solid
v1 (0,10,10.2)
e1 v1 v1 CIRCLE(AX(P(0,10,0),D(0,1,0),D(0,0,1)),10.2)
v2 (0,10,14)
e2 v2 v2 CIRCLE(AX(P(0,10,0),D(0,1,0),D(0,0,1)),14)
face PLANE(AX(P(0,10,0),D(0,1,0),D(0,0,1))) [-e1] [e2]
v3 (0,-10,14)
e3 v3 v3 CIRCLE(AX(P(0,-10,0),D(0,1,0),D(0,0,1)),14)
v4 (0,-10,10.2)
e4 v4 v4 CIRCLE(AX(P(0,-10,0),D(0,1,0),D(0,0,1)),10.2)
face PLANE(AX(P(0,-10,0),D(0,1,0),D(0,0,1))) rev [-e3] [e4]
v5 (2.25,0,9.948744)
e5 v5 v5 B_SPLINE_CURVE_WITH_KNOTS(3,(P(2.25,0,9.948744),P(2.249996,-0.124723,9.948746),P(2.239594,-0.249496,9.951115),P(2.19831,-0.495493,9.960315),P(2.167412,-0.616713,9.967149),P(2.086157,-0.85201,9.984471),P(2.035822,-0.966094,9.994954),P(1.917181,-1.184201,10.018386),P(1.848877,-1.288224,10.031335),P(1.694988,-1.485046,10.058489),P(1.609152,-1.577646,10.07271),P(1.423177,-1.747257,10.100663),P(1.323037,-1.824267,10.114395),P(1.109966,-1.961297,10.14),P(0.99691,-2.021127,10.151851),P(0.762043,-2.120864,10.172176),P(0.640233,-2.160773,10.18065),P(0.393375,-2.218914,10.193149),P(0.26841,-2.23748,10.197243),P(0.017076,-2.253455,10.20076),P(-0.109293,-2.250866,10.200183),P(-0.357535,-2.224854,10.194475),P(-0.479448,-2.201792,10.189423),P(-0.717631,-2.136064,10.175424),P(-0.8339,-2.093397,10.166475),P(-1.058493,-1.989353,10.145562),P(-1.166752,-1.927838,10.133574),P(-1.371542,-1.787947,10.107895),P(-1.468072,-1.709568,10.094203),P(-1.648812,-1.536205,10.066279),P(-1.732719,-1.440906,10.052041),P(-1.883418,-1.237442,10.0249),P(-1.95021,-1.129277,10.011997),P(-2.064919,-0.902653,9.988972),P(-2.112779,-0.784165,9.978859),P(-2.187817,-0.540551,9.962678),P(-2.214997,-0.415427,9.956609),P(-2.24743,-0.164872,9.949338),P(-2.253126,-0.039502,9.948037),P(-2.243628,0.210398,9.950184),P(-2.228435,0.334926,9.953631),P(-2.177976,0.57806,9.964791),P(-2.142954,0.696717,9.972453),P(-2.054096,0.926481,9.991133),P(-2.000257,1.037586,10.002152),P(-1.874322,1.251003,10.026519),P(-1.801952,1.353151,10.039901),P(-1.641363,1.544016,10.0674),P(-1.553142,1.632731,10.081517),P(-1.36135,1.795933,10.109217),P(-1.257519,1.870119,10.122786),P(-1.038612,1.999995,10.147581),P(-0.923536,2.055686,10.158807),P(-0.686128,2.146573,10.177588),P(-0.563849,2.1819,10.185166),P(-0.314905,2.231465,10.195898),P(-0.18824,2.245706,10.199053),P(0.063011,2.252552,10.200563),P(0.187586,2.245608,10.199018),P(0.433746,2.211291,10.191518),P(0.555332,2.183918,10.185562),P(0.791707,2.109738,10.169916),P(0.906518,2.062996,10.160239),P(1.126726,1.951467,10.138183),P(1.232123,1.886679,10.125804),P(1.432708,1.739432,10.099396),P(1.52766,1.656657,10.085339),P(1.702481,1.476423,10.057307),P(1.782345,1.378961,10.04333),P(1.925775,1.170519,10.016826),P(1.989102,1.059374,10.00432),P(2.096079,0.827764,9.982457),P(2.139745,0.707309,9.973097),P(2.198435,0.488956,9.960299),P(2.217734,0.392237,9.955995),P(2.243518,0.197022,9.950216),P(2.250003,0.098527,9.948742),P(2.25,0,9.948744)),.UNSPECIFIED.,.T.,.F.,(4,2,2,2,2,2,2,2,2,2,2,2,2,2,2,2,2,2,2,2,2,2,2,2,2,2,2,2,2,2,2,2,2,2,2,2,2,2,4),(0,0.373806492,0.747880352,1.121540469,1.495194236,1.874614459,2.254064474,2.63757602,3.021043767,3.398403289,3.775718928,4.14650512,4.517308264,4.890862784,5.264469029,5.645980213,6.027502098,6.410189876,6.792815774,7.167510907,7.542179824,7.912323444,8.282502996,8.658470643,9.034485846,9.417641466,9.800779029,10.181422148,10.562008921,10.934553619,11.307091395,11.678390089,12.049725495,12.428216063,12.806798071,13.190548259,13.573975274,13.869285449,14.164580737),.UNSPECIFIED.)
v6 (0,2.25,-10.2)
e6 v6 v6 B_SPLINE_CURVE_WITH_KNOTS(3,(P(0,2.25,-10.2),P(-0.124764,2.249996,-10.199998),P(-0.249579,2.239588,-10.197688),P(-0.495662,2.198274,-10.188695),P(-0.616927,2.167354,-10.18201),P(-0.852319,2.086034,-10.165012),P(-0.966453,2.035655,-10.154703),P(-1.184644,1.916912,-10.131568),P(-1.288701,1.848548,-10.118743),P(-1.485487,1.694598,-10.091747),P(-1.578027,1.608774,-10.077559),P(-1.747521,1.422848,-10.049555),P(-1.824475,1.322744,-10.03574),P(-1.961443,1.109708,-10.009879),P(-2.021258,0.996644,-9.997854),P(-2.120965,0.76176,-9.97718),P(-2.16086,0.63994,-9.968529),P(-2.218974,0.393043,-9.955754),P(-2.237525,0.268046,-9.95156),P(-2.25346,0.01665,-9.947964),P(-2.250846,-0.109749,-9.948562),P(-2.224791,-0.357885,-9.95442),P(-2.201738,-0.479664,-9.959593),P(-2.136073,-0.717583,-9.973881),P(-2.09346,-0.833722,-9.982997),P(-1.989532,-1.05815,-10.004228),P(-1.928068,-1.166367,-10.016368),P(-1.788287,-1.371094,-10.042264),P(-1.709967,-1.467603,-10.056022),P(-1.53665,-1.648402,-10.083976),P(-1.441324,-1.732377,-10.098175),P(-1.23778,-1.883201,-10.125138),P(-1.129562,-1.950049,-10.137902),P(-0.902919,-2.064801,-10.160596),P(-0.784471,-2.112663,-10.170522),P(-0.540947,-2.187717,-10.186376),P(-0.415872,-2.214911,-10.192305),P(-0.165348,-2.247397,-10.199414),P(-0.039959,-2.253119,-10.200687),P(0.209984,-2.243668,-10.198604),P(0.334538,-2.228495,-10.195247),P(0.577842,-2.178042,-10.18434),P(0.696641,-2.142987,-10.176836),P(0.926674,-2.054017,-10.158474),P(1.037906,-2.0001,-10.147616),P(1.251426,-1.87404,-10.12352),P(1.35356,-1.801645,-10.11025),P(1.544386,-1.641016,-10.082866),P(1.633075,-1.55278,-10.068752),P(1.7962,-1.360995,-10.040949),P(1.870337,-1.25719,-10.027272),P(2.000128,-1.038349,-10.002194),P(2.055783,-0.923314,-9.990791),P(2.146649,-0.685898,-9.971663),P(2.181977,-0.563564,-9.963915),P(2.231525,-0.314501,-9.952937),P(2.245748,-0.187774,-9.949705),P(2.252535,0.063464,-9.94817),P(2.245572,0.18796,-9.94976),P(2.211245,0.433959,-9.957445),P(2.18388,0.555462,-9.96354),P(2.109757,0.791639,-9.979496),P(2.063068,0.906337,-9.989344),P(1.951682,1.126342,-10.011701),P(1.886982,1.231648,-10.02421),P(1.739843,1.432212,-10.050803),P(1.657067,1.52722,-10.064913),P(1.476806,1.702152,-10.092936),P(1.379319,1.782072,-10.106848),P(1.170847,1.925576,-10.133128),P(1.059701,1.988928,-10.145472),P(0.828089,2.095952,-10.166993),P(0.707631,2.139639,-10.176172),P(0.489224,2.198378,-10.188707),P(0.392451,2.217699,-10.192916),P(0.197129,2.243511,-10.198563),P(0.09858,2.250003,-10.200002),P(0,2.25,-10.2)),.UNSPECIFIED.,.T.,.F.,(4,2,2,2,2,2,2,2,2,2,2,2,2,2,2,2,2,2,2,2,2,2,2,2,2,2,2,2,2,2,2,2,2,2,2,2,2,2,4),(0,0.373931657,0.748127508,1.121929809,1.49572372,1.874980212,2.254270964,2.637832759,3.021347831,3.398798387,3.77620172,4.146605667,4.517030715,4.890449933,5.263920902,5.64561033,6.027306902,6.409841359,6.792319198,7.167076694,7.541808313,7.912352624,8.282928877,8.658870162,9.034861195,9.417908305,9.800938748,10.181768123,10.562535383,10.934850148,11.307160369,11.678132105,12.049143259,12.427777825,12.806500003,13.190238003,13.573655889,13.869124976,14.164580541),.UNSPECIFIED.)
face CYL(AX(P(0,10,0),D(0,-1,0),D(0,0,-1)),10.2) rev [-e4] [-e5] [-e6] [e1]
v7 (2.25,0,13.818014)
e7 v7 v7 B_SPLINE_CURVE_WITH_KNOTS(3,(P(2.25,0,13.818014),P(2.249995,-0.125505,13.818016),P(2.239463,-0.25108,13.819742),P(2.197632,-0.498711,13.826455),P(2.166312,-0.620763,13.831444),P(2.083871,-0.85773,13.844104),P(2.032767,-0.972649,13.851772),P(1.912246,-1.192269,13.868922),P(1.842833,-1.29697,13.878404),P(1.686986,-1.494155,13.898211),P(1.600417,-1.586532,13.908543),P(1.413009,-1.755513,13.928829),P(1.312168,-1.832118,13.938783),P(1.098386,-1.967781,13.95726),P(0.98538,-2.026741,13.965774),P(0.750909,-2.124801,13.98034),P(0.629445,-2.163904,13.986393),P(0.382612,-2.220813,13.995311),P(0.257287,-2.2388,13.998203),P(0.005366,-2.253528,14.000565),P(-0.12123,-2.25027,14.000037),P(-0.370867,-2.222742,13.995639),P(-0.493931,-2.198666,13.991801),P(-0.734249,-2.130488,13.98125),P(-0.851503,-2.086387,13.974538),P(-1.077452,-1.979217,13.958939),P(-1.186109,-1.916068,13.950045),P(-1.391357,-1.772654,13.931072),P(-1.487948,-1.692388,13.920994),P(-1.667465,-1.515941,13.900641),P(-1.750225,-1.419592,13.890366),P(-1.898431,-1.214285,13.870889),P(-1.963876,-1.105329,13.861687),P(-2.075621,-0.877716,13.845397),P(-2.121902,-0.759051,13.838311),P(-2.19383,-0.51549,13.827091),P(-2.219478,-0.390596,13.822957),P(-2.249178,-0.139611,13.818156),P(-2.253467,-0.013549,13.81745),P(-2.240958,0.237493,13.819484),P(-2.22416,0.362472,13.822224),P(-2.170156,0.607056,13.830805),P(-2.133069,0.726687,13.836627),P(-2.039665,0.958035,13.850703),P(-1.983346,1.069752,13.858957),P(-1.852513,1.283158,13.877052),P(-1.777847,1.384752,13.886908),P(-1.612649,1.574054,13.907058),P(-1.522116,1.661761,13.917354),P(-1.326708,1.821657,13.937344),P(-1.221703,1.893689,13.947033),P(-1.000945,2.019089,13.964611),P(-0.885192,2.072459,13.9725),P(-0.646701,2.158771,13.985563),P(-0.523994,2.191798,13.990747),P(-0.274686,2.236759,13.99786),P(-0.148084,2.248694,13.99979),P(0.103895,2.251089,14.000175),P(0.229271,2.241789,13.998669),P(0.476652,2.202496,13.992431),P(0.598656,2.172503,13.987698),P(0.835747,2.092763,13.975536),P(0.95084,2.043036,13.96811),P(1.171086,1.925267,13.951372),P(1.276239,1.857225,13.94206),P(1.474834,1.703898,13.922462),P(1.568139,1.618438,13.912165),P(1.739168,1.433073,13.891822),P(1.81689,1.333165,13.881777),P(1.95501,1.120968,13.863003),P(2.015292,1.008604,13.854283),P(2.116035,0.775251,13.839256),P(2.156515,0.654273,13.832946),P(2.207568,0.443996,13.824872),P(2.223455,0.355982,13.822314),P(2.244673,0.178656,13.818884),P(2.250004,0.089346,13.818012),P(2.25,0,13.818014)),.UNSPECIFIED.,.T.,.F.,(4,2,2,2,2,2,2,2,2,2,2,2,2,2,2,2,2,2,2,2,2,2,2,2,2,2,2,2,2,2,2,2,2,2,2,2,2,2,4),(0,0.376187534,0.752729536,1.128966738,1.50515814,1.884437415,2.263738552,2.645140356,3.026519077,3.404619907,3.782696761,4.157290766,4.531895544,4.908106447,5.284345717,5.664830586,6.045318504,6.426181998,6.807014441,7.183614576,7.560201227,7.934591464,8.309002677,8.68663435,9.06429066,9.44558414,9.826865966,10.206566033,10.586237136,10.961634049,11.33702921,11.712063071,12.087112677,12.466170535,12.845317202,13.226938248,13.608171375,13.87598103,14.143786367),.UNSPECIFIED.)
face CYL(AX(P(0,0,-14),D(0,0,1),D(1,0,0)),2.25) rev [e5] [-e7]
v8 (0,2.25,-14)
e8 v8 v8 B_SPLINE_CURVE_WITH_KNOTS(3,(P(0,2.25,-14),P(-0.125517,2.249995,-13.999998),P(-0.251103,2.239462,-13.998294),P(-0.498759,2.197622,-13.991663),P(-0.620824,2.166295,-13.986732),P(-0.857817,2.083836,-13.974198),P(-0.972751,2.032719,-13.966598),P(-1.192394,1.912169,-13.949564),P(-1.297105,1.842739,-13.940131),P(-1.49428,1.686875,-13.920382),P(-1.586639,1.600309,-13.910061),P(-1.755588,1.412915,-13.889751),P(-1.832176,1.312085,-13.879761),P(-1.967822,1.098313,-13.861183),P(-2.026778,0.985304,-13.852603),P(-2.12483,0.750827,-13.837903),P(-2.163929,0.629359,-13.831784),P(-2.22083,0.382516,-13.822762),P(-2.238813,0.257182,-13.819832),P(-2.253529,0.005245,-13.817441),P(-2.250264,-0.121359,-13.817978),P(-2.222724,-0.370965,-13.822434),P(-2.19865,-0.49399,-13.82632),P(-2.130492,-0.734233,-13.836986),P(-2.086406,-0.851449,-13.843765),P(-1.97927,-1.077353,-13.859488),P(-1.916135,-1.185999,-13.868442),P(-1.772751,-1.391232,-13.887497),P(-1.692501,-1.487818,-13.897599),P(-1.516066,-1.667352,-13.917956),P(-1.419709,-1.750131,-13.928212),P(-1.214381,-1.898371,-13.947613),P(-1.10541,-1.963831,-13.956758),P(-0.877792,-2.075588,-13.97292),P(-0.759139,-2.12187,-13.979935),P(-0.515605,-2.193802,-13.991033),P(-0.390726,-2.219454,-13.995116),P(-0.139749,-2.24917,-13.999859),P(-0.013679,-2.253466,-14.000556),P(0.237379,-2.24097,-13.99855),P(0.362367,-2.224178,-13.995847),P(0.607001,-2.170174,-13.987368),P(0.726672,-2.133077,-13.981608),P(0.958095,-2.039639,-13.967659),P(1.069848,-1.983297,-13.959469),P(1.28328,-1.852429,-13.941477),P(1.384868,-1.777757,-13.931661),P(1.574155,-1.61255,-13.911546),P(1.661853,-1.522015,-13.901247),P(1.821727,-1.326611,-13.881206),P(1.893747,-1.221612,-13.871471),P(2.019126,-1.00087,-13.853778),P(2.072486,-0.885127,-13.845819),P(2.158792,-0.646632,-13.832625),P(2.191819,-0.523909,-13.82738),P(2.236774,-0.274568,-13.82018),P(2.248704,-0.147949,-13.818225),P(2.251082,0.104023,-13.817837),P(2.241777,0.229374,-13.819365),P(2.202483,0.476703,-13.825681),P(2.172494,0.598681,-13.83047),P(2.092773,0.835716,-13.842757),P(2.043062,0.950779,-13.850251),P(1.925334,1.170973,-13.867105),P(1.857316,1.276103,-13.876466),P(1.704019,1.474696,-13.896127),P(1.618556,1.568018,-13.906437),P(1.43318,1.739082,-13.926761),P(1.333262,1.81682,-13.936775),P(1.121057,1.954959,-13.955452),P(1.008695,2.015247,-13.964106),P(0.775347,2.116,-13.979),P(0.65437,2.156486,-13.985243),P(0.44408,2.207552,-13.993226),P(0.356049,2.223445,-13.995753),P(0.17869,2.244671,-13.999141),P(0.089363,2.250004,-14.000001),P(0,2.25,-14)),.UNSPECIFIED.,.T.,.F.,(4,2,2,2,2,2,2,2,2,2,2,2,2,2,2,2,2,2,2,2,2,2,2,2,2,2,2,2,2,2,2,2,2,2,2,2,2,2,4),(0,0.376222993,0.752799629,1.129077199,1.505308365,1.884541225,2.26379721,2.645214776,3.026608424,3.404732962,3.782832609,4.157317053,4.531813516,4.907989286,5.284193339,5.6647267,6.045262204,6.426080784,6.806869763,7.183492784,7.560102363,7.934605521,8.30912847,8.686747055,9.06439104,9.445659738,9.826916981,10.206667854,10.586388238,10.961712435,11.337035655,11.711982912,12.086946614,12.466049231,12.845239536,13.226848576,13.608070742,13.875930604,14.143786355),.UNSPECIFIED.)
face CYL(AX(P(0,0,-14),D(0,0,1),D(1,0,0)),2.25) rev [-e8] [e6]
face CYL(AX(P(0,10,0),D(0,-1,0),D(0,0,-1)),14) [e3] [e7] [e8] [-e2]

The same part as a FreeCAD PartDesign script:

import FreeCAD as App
import Part
import Sketcher

doc = App.newDocument("Part")
params = doc.addObject("Spreadsheet::Sheet", "Params")
for row, (alias, value) in enumerate([
    ("sketch1_diameter", "28 mm"),
    ("sketch1_diameter2", "20.4 mm"),
    ("pad1_length", "20 mm"),
    ("sketch2_diameter", "4.5 mm"),
], start=1):
    params.set(f"A{row}", alias)
    params.set(f"B{row}", "=" + value)
    params.setAlias(f"B{row}", alias)

body = doc.addObject("PartDesign::Body", "Body")

sketch1 = body.newObject("Sketcher::SketchObject", "Sketch")
sketch1.AttachmentSupport = (doc.getObject("XZ_Plane"), [""])
sketch1.MapMode = "FlatFace"
sketch1.addGeometry([
    Part.Circle(App.Vector(0, 0, 0), App.Vector(0, 0, 1), 14),
    Part.Circle(App.Vector(0, 0, 0), App.Vector(0, 0, 1), 10),
], False)
sketch1.addConstraint([
    Sketcher.Constraint("Coincident", 0, 3, -1, 1),
    Sketcher.Constraint("Coincident", 1, 3, -1, 1),
    Sketcher.Constraint("Diameter", 0, 28.0),
    Sketcher.Constraint("Diameter", 1, 20.4),
])
sketch1.setExpression("Constraints[2]", "Params.sketch1_diameter")
sketch1.setExpression("Constraints[3]", "Params.sketch1_diameter2")
pad1 = body.newObject("PartDesign::Pad", "Pad")
pad1.Profile = sketch1
pad1.setExpression("Length", "Params.pad1_length")
pad1.Midplane = True

sketch2 = body.newObject("Sketcher::SketchObject", "Sketch001")
sketch2.AttachmentSupport = (doc.getObject("XY_Plane"), [""])
sketch2.MapMode = "FlatFace"
sketch2.addGeometry(Part.Circle(App.Vector(0, 0, 0), App.Vector(0, 0, 1), 2.2), False)
sketch2.addConstraint([
    Sketcher.Constraint("Coincident", 0, 3, -1, 1),
    Sketcher.Constraint("Diameter", 0, 4.5),
])
sketch2.setExpression("Constraints[1]", "Params.sketch2_diameter")
pocket1 = body.newObject("PartDesign::Pocket", "Pocket")
pocket1.Profile = sketch2
pocket1.Type = "ThroughAll"
pocket1.Midplane = True

doc.recompute()
